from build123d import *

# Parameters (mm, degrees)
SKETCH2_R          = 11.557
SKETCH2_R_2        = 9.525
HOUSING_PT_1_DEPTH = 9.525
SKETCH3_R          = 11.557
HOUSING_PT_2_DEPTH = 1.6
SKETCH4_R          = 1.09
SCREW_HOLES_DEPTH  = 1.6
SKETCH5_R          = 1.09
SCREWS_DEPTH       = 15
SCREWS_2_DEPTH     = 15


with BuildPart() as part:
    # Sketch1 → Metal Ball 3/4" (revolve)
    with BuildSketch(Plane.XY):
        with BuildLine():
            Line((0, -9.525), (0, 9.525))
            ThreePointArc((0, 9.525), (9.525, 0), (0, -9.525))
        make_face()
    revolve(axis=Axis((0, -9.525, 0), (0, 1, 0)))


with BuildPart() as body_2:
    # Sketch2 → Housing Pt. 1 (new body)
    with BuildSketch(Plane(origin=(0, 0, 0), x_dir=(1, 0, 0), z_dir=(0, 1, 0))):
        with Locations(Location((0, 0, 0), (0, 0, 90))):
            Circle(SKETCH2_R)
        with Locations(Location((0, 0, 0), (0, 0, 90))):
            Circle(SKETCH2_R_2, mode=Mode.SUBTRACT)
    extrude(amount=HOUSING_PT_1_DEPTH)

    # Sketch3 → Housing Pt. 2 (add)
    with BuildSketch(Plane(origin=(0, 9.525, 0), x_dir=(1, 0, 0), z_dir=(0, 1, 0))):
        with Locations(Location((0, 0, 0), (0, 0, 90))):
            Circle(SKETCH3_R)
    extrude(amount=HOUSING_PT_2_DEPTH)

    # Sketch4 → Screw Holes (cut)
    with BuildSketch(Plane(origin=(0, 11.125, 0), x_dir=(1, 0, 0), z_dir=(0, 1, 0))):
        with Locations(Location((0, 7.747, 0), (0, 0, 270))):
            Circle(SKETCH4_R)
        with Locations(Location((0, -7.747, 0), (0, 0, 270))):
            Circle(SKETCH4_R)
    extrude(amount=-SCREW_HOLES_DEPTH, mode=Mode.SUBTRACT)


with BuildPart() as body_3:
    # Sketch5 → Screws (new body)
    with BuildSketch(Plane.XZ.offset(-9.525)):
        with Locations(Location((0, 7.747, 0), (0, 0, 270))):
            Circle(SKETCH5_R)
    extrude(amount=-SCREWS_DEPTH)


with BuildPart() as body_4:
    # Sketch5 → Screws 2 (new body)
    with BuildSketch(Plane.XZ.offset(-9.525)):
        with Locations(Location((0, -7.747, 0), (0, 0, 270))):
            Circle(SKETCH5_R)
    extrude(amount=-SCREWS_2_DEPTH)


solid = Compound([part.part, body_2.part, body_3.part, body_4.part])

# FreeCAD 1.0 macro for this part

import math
import FreeCAD as App
import Part
import Sketcher
Q = App.Units.Quantity

doc = App.newDocument("Part")
body = doc.addObject("PartDesign::Body", "Body")

sketch1 = body.newObject("Sketcher::SketchObject", "Sketch")
sketch1.AttachmentSupport = (doc.getObject("XY_Plane"), [""])
sketch1.MapMode = "FlatFace"
sketch1.addGeometry([
    Part.LineSegment(App.Vector(0, 10, 0), App.Vector(0, -10, 0)),
    Part.ArcOfCircle(Part.Circle(App.Vector(0, 0, 0), App.Vector(0, 0, 1), 10), math.radians(-90), math.radians(90)),
], False)
sketch1.addConstraint([
    Sketcher.Constraint("Coincident", 0, 1, 1, 2),
    Sketcher.Constraint("Coincident", 1, 1, 0, 2),
    Sketcher.Constraint("Vertical", 0),
    Sketcher.Constraint("Coincident", 1, 3, -1, 1),
    Sketcher.Constraint("PointOnObject", 0, 1, -2),
    Sketcher.Constraint("Radius", 1, Q("0.375 in")),
])
revolution = body.newObject("PartDesign::Revolution", "Revolution")
revolution.Profile = sketch1
revolution.ReferenceAxis = (sketch1, ["V_Axis"])
revolution.Angle = 360
body2 = doc.addObject("PartDesign::Body", "Body001")

sketch2 = body2.newObject("Sketcher::SketchObject", "Sketch001")
sketch2.AttachmentSupport = (doc.getObject("XZ_Plane001"), [""])
sketch2.MapMode = "FlatFace"
sketch2.addGeometry([
    Part.Circle(App.Vector(0, 0, 0), App.Vector(0, 0, 1), 12),
    Part.Circle(App.Vector(0, 0, 0), App.Vector(0, 0, 1), 10),
], False)
sketch2.addConstraint([
    Sketcher.Constraint("Coincident", 0, 3, -1, 1),
    Sketcher.Constraint("Coincident", 1, 3, -1, 1),
    Sketcher.Constraint("Diameter", 0, Q("0.91 in")),
    Sketcher.Constraint("Diameter", 1, Q("0.75 in")),
])
pad1 = body2.newObject("PartDesign::Pad", "Pad")
pad1.Profile = sketch2
pad1.Length = Q("0.375 in")
pad1.Reversed = True

sketch3 = body2.newObject("Sketcher::SketchObject", "Sketch002")
sketch3.AttachmentSupport = (doc.getObject("XZ_Plane001"), [""])
sketch3.MapMode = "FlatFace"
sketch3.AttachmentOffset = App.Placement(App.Vector(0, 0, -0.375 * 25.4), App.Rotation())
sketch3.addGeometry(Part.Circle(App.Vector(0, 0, 0), App.Vector(0, 0, 1), 12), False)
sketch3.addConstraint([
    Sketcher.Constraint("Coincident", 0, 3, -1, 1),
    Sketcher.Constraint("Diameter", 0, Q("0.91 in")),
])
pad2 = body2.newObject("PartDesign::Pad", "Pad001")
pad2.Profile = sketch3
pad2.Length = 1.6
pad2.Reversed = True

sketch4 = body2.newObject("Sketcher::SketchObject", "Sketch003")
sketch4.AttachmentSupport = (doc.getObject("XZ_Plane001"), [""])
sketch4.MapMode = "FlatFace"
sketch4.AttachmentOffset = App.Placement(App.Vector(0, 0, -11.125), App.Rotation())
sketch4.addGeometry([
    Part.Circle(App.Vector(0, -7.7, 0), App.Vector(0, 0, 1), 1.1),
    Part.Circle(App.Vector(0, 7.7, 0), App.Vector(0, 0, 1), 1.1),
], False)
sketch4.addConstraint([
    Sketcher.Constraint("Equal", 0, 1),
    Sketcher.Constraint("Symmetric", 0, 3, 1, 3, -1, 1),
    Sketcher.Constraint("PointOnObject", 0, 3, -2),
    Sketcher.Constraint("Diameter", 0, 2.18),
    Sketcher.Constraint("DistanceY", 0, 3, 1, 3, Q("0.61 in")),
])
pocket1 = body2.newObject("PartDesign::Pocket", "Pocket")
pocket1.Profile = sketch4
pocket1.Length = 1.6
pocket1.Reversed = True
body3 = doc.addObject("PartDesign::Body", "Body002")

sketch5 = body3.newObject("Sketcher::SketchObject", "Sketch004")
sketch5.AttachmentSupport = (doc.getObject("XZ_Plane002"), [""])
sketch5.MapMode = "FlatFace"
sketch5.AttachmentOffset = App.Placement(App.Vector(0, 0, -0.375 * 25.4), App.Rotation())
sketch5.addGeometry(Part.Circle(App.Vector(0, 7.7, 0), App.Vector(0, 0, 1), 1.1), False)
sketch5.addConstraint([
    Sketcher.Constraint("PointOnObject", 0, 3, -2),
    Sketcher.Constraint("Diameter", 0, 2.18),
    Sketcher.Constraint("DistanceY", -1, 1, 0, 3, Q("0.305 in")),
])
pad3 = body3.newObject("PartDesign::Pad", "Pad002")
pad3.Profile = sketch5
pad3.Length = 15
pad3.Reversed = True
body4 = doc.addObject("PartDesign::Body", "Body003")

sketch6 = body4.newObject("Sketcher::SketchObject", "Sketch005")
sketch6.AttachmentSupport = (doc.getObject("XZ_Plane003"), [""])
sketch6.MapMode = "FlatFace"
sketch6.AttachmentOffset = App.Placement(App.Vector(0, 0, -0.375 * 25.4), App.Rotation())
sketch6.addGeometry(Part.Circle(App.Vector(0, -7.7, 0), App.Vector(0, 0, 1), 1.1), False)
sketch6.addConstraint([
    Sketcher.Constraint("PointOnObject", 0, 3, -2),
    Sketcher.Constraint("Diameter", 0, 2.18),
    Sketcher.Constraint("DistanceY", 0, 3, -1, 1, Q("0.305 in")),
])
pad4 = body4.newObject("PartDesign::Pad", "Pad003")
pad4.Profile = sketch6
pad4.Length = 15
pad4.Reversed = True

doc.recompute()
